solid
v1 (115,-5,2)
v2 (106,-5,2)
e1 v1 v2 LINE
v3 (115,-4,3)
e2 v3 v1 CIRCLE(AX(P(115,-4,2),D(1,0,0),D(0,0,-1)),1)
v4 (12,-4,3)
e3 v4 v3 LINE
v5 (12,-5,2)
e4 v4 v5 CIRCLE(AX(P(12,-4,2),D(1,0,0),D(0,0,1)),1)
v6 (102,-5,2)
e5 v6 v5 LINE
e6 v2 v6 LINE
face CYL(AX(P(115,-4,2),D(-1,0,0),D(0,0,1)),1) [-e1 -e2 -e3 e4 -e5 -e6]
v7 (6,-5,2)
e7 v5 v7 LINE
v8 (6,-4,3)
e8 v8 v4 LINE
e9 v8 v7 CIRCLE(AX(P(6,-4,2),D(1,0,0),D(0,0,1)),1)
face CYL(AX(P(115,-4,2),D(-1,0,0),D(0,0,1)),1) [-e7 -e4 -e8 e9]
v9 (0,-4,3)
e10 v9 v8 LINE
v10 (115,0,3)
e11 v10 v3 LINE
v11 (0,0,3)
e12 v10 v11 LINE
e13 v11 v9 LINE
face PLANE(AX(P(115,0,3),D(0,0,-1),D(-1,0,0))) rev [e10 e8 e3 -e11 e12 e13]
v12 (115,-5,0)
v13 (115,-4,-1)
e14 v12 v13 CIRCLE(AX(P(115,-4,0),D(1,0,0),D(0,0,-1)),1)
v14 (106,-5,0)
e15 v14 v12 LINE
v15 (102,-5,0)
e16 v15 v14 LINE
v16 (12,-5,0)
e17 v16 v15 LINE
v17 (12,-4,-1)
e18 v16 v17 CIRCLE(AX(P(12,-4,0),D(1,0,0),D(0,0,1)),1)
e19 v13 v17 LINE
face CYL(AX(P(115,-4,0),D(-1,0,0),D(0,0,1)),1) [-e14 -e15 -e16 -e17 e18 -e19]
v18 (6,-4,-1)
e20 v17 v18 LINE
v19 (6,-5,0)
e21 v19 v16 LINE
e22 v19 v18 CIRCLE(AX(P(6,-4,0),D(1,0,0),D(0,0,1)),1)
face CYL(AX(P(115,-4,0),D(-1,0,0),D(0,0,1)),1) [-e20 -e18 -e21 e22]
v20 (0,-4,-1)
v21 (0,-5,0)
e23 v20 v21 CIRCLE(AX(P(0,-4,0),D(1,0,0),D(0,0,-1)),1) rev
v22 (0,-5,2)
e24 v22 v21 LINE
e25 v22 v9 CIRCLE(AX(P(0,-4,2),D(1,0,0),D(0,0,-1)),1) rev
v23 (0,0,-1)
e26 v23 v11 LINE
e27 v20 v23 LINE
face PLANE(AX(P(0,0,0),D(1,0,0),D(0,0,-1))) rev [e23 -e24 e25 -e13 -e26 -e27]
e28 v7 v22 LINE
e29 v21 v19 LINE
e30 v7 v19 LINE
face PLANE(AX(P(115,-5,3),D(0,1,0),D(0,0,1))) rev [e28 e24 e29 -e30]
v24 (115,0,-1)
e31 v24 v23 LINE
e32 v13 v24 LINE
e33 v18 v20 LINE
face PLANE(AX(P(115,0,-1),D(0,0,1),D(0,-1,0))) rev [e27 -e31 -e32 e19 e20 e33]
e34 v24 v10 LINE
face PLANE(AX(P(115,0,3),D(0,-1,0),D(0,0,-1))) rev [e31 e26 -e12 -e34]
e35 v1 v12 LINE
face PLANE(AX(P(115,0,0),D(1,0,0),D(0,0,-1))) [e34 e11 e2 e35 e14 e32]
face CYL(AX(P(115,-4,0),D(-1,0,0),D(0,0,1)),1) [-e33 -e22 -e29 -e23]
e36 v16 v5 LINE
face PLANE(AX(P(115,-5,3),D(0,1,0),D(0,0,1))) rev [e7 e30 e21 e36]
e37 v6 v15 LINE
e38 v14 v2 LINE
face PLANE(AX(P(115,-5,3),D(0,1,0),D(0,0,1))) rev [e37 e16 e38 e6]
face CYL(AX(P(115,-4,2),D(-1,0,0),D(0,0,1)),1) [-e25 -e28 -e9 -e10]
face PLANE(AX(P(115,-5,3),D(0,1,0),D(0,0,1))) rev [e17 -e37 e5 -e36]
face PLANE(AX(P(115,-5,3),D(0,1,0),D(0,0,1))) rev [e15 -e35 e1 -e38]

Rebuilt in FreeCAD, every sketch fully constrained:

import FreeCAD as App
import Part
import Sketcher
Q = App.Units.Quantity


def edges_at(feature, points):
    """Names of the edges that pass closest to the given points."""
    edges = feature.Shape.Edges
    near = lambda p: min(range(len(edges)), key=lambda i: edges[i].distToShape(Part.Vertex(*p))[0])
    return sorted({f"Edge{near(p) + 1}" for p in points})

doc = App.newDocument("Part")
body = doc.addObject("PartDesign::Body", "Body")

# Sketch on YZ plane
sketch1 = body.newObject("Sketcher::SketchObject", "Sketch")
sketch1.AttachmentSupport = (doc.getObject("YZ_Plane"), [""])
sketch1.MapMode = "FlatFace"
sketch1.addGeometry([
    Part.LineSegment(App.Vector(0, 3, 0), App.Vector(-5, 3, 0)),
    Part.LineSegment(App.Vector(-5, 3, 0), App.Vector(-5, -1, 0)),
    Part.LineSegment(App.Vector(-5, -1, 0), App.Vector(0, -1, 0)),
    Part.LineSegment(App.Vector(0, -1, 0), App.Vector(0, 3, 0)),
], False)
sketch1.addConstraint([
    Sketcher.Constraint("Coincident", 0, 2, 1, 1),
    Sketcher.Constraint("Coincident", 1, 2, 2, 1),
    Sketcher.Constraint("Coincident", 2, 2, 3, 1),
    Sketcher.Constraint("Coincident", 3, 2, 0, 1),
    Sketcher.Constraint("Horizontal", 0),
    Sketcher.Constraint("Vertical", 1),
    Sketcher.Constraint("Horizontal", 2),
    Sketcher.Constraint("Vertical", 3),
    Sketcher.Constraint("PointOnObject", 2, 2, -2),
    Sketcher.Constraint("DistanceX", 0, 2, 0, 1, Q("5 mm")),
    Sketcher.Constraint("DistanceY", 1, 2, 1, 1, Q("4 mm")),
    Sketcher.Constraint("DistanceY", -1, 1, 0, 2, Q("3 mm")),
])
pad1 = body.newObject("PartDesign::Pad", "Pad")
pad1.Profile = sketch1
pad1.Length = 115
doc.recompute()

fillet = body.newObject("PartDesign::Fillet", "Fillet")
fillet.Base = (pad1, edges_at(pad1, [(57.5, -5, -1), (57.5, -5, 3)]))
fillet.Radius = 1

doc.recompute()
